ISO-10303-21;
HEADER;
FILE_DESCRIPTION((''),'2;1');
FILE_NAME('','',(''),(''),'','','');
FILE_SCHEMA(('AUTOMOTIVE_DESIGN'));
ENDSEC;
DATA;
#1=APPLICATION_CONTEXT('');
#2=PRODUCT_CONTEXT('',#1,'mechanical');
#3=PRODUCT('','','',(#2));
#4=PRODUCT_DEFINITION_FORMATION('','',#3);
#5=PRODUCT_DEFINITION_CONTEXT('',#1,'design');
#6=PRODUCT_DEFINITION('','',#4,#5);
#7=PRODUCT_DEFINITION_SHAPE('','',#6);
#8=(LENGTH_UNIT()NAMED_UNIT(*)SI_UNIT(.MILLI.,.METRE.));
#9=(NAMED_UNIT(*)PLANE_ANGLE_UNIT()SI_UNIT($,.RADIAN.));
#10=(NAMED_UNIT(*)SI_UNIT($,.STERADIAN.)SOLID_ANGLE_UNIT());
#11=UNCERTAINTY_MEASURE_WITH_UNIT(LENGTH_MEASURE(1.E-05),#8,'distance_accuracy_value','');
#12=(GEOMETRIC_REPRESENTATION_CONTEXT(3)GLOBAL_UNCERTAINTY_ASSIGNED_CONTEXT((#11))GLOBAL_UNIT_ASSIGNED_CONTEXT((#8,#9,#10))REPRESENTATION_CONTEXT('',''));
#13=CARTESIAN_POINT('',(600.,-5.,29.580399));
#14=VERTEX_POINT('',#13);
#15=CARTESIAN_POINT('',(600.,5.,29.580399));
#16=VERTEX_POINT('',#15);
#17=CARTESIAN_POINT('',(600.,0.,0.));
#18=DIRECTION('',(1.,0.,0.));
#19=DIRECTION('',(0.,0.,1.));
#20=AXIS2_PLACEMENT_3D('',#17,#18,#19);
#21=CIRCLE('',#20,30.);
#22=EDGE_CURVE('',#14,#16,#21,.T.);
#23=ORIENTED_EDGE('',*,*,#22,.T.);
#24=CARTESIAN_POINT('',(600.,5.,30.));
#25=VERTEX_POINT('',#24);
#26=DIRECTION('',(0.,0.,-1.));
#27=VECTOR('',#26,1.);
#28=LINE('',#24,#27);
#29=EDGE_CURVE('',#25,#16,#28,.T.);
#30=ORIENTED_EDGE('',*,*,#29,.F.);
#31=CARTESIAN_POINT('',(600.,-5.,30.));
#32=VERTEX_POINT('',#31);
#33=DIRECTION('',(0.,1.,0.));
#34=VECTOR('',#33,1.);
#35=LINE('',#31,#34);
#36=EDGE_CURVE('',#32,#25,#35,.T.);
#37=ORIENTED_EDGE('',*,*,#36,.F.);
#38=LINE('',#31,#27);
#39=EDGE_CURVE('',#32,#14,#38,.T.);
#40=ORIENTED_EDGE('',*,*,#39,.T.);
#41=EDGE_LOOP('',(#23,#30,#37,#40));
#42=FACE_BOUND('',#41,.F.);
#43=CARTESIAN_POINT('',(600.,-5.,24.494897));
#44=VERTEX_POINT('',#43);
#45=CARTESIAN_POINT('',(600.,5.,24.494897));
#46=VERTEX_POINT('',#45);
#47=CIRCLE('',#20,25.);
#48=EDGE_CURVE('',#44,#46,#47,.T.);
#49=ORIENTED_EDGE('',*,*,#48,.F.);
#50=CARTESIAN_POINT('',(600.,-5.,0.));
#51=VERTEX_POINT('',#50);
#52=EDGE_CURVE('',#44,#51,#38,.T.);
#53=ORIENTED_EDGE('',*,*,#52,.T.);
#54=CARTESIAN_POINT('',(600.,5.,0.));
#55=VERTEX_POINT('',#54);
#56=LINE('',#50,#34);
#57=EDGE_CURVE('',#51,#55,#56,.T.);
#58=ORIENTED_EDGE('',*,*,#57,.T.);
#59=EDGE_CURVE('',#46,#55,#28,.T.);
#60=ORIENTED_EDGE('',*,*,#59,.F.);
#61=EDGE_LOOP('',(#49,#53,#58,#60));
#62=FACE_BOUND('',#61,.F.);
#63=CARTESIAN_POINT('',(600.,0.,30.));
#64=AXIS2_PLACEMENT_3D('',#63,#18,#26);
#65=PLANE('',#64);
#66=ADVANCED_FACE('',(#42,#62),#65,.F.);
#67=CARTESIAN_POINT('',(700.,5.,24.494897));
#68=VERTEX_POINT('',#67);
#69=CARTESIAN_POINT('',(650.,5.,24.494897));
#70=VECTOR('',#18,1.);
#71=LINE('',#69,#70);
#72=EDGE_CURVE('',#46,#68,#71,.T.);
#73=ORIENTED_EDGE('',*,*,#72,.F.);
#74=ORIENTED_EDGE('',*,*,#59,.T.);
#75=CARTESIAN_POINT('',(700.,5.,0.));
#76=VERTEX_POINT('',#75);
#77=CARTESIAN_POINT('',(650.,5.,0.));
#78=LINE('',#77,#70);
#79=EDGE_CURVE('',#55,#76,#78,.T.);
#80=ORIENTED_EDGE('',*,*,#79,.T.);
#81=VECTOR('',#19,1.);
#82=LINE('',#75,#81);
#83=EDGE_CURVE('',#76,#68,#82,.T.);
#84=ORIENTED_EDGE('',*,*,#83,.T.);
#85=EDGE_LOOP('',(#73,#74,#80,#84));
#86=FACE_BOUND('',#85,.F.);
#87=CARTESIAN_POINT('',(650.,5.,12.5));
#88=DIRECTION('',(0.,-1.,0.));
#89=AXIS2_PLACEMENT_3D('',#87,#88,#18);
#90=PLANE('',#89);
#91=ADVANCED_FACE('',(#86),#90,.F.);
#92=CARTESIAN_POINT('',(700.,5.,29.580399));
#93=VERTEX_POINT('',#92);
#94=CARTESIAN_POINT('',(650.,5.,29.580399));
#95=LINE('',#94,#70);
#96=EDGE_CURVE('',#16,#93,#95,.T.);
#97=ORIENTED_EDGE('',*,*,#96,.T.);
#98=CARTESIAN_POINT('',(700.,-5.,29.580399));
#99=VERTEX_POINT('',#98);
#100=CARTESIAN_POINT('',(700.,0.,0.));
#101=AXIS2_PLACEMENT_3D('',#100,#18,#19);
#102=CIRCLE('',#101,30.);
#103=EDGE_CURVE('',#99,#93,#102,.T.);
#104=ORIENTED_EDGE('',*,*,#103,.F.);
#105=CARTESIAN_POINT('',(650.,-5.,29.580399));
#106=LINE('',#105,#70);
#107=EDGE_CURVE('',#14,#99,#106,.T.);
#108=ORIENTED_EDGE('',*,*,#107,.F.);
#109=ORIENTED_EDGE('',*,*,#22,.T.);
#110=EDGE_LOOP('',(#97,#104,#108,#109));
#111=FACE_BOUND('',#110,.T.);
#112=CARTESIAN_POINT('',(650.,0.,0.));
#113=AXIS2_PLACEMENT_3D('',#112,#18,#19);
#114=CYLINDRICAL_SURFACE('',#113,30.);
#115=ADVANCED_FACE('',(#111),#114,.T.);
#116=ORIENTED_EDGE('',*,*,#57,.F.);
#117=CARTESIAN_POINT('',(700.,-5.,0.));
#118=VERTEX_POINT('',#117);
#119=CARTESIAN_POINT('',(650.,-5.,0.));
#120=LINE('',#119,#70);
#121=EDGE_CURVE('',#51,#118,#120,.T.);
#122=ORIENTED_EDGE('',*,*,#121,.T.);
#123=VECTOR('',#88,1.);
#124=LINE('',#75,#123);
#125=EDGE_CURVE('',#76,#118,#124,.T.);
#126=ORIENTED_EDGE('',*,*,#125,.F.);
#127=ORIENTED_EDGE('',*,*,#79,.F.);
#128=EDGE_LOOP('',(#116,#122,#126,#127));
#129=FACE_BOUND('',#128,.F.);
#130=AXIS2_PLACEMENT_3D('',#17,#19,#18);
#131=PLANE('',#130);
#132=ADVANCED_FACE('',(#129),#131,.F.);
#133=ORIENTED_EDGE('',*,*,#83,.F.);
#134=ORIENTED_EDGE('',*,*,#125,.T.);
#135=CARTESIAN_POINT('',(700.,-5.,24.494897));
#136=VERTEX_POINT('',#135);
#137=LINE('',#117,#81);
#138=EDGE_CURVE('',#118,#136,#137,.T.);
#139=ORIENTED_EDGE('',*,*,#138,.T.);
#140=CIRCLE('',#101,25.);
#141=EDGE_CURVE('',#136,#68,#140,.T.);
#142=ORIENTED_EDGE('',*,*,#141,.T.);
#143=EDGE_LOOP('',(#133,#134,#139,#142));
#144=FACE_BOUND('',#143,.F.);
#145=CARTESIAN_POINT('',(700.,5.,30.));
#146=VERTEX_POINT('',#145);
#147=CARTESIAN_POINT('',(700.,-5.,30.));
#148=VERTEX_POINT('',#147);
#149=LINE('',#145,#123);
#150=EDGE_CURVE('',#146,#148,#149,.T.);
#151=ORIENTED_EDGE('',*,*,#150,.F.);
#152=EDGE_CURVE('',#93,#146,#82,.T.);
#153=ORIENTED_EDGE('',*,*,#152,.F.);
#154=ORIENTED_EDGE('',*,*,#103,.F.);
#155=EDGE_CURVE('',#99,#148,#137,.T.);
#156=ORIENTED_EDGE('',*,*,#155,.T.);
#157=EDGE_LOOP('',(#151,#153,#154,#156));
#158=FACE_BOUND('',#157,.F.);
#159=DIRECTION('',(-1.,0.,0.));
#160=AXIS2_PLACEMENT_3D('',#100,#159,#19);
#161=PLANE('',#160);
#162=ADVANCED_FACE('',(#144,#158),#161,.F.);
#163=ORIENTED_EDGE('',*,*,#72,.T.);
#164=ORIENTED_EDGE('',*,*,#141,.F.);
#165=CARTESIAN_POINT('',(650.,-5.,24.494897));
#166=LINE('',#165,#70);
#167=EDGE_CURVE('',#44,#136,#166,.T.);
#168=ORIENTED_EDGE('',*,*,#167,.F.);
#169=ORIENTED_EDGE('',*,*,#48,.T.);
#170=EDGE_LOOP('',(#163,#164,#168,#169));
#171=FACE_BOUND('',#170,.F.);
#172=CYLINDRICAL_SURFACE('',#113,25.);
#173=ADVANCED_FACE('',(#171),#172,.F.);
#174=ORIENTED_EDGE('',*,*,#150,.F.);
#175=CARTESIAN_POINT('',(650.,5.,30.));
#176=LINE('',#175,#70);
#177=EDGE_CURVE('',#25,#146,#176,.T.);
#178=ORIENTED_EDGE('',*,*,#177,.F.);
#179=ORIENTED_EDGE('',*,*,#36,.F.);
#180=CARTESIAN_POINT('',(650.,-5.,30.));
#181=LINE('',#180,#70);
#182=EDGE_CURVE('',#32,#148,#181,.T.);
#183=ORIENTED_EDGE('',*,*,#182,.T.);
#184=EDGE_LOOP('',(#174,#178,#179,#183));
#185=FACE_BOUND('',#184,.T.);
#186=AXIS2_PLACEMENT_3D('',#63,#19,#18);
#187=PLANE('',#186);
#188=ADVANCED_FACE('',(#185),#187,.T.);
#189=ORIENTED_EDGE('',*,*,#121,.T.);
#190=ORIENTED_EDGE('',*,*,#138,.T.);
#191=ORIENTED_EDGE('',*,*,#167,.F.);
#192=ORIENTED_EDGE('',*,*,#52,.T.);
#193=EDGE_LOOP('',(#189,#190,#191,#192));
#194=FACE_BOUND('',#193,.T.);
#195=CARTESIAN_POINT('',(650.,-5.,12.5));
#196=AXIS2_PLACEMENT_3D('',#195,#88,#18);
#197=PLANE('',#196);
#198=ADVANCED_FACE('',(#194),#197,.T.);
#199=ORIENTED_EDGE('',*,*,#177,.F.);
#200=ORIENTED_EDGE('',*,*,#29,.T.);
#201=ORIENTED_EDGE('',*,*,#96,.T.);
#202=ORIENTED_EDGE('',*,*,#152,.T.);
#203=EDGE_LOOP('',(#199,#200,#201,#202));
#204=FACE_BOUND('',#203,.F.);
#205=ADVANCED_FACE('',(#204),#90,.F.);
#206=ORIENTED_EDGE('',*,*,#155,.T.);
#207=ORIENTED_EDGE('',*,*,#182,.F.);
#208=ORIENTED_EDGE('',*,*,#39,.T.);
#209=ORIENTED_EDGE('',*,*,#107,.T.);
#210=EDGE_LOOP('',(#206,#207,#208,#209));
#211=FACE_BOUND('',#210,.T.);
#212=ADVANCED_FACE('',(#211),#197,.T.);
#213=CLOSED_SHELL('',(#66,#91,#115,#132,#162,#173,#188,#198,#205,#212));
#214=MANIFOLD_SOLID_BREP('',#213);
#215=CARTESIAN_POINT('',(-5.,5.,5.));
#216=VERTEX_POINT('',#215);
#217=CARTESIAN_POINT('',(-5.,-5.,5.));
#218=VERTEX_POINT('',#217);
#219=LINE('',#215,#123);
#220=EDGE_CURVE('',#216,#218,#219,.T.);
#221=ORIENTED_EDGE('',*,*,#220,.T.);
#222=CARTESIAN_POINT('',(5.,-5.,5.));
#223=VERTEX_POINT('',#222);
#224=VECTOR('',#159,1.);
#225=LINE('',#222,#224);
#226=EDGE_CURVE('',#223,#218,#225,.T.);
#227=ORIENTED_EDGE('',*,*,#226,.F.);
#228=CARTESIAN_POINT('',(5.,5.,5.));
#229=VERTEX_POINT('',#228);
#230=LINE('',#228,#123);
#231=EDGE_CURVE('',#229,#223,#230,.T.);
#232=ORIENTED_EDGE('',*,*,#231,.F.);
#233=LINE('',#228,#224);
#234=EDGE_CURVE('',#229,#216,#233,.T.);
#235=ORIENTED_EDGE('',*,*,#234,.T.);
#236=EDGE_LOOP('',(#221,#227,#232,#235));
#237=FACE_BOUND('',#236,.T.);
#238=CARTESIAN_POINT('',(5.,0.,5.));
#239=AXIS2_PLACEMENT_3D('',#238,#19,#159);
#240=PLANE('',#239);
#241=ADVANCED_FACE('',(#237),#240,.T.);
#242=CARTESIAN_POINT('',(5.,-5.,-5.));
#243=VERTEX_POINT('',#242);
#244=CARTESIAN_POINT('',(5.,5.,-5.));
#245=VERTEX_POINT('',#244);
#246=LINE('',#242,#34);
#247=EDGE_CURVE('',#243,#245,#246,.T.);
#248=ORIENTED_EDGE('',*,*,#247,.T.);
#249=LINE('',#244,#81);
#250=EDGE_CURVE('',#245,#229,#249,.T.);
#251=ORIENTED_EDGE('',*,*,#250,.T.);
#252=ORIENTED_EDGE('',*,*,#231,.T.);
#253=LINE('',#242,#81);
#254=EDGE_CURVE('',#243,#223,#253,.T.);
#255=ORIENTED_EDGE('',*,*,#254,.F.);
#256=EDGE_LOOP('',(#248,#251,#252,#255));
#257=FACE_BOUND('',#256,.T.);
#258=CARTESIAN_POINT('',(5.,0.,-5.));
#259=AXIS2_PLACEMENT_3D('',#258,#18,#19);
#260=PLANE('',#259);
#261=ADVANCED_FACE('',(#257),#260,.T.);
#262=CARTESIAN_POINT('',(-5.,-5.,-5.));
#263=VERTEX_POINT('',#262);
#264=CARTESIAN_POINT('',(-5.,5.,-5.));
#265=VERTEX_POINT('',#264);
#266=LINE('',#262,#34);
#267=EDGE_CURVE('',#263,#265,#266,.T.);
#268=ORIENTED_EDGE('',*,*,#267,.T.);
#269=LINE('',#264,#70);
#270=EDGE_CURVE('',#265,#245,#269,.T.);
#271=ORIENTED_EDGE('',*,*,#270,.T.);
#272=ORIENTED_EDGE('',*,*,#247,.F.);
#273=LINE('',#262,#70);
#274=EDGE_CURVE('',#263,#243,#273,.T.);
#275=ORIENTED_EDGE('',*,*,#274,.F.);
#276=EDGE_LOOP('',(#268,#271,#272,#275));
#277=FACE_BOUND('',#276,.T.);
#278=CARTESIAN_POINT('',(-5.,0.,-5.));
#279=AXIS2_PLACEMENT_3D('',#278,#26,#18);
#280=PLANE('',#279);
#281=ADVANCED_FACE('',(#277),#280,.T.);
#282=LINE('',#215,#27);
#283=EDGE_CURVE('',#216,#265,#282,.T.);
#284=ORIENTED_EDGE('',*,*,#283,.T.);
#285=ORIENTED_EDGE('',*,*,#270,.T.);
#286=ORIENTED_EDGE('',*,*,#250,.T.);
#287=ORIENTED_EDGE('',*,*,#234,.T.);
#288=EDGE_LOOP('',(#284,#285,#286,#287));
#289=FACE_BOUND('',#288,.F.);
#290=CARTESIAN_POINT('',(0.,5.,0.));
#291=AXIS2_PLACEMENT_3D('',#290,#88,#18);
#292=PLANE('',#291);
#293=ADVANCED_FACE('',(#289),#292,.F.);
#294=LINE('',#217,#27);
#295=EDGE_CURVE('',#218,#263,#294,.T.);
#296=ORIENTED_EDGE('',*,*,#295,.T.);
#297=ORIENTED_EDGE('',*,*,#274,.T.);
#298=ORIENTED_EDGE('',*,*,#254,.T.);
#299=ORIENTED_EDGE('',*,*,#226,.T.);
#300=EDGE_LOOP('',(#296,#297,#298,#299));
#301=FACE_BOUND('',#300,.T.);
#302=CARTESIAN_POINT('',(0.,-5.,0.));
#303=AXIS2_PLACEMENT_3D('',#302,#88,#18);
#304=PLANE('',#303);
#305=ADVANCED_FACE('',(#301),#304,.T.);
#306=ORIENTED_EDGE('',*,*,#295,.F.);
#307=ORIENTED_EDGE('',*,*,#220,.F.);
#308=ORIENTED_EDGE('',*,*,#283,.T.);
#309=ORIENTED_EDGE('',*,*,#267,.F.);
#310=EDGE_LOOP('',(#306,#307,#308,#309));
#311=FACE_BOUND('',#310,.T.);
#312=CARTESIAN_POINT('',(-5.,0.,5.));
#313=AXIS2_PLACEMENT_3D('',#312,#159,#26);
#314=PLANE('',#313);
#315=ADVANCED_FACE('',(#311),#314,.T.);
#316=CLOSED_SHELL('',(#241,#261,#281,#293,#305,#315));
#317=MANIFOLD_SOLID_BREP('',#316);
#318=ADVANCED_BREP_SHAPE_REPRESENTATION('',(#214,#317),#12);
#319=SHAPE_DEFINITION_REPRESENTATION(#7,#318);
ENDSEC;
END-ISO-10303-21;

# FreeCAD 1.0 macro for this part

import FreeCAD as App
import Part
import Sketcher
from FreeCAD import Vector


def add_polygon(sketch, points):
    """Adds a closed chain of lines whose ends are joined by coincident constraints."""
    first, n = sketch.GeometryCount, len(points)
    for a, b in zip(points, points[1:] + points[:1]):
        sketch.addGeometry(Part.LineSegment(App.Vector(*a, 0), App.Vector(*b, 0)), False)
    for i in range(n):
        sketch.addConstraint(Sketcher.Constraint("Coincident", first + i, 2, first + (i + 1) % n, 1))

doc = App.newDocument("Part")
body = doc.addObject("PartDesign::Body", "Body")
body.AllowCompound = True

sketch1 = doc.addObject("Sketcher::SketchObject", "Sketch")
body.addObject(sketch1)
sketch1.AttachmentSupport = (doc.XZ_Plane, [""])
sketch1.MapMode = "FlatFace"
add_polygon(sketch1, [(600, 30), (600, 25), (700, 25), (700, 30)])
sketch1.addConstraint([
    Sketcher.Constraint("Vertical", 0),
    Sketcher.Constraint("Horizontal", 1),
    Sketcher.Constraint("Vertical", 2),
    Sketcher.Constraint("Horizontal", 3),
    Sketcher.Constraint("DistanceX", 1, 1, 1, 2, 100.0),
    Sketcher.Constraint("DistanceY", 0, 2, 0, 1, 5.0),
    Sketcher.Constraint("DistanceX", -1, 1, 0, 2, 600.0),
    Sketcher.Constraint("DistanceY", -1, 1, 0, 2, 25.0),
])
revolution = doc.addObject("PartDesign::Revolution", "Revolution")
body.addObject(revolution)
revolution.Profile = sketch1
revolution.ReferenceAxis = (sketch1, ["H_Axis"])
revolution.Angle = 360

sketch2 = doc.addObject("Sketcher::SketchObject", "Sketch001")
body.addObject(sketch2)
sketch2.AttachmentSupport = (doc.XZ_Plane, [""])
sketch2.MapMode = "FlatFace"
add_polygon(sketch2, [(600, 0), (700, 0), (700, 30), (600, 30)])
add_polygon(sketch2, [(5, -5), (5, 5), (-5, 5), (-5, -5)])
sketch2.addConstraint([
    Sketcher.Constraint("Horizontal", 0),
    Sketcher.Constraint("Vertical", 1),
    Sketcher.Constraint("Horizontal", 2),
    Sketcher.Constraint("Vertical", 3),
    Sketcher.Constraint("Vertical", 4),
    Sketcher.Constraint("Horizontal", 5),
    Sketcher.Constraint("Vertical", 6),
    Sketcher.Constraint("Horizontal", 7),
    Sketcher.Constraint("Symmetric", 4, 2, 6, 2, -1, 1),
    Sketcher.Constraint("PointOnObject", 0, 2, -1),
    Sketcher.Constraint("Equal", 7, 4),
    Sketcher.Constraint("DistanceX", 0, 1, 0, 2, 100.0),
    Sketcher.Constraint("DistanceX", 5, 2, 5, 1, 10.0),
    Sketcher.Constraint("DistanceY", 1, 1, 1, 2, 30.0),
    Sketcher.Constraint("DistanceX", -1, 1, 0, 2, 700.0),
])
pad1 = doc.addObject("PartDesign::Pad", "Pad")
body.addObject(pad1)
pad1.Profile = sketch2
pad1.Length = 10
pad1.Midplane = True

doc.recompute()
